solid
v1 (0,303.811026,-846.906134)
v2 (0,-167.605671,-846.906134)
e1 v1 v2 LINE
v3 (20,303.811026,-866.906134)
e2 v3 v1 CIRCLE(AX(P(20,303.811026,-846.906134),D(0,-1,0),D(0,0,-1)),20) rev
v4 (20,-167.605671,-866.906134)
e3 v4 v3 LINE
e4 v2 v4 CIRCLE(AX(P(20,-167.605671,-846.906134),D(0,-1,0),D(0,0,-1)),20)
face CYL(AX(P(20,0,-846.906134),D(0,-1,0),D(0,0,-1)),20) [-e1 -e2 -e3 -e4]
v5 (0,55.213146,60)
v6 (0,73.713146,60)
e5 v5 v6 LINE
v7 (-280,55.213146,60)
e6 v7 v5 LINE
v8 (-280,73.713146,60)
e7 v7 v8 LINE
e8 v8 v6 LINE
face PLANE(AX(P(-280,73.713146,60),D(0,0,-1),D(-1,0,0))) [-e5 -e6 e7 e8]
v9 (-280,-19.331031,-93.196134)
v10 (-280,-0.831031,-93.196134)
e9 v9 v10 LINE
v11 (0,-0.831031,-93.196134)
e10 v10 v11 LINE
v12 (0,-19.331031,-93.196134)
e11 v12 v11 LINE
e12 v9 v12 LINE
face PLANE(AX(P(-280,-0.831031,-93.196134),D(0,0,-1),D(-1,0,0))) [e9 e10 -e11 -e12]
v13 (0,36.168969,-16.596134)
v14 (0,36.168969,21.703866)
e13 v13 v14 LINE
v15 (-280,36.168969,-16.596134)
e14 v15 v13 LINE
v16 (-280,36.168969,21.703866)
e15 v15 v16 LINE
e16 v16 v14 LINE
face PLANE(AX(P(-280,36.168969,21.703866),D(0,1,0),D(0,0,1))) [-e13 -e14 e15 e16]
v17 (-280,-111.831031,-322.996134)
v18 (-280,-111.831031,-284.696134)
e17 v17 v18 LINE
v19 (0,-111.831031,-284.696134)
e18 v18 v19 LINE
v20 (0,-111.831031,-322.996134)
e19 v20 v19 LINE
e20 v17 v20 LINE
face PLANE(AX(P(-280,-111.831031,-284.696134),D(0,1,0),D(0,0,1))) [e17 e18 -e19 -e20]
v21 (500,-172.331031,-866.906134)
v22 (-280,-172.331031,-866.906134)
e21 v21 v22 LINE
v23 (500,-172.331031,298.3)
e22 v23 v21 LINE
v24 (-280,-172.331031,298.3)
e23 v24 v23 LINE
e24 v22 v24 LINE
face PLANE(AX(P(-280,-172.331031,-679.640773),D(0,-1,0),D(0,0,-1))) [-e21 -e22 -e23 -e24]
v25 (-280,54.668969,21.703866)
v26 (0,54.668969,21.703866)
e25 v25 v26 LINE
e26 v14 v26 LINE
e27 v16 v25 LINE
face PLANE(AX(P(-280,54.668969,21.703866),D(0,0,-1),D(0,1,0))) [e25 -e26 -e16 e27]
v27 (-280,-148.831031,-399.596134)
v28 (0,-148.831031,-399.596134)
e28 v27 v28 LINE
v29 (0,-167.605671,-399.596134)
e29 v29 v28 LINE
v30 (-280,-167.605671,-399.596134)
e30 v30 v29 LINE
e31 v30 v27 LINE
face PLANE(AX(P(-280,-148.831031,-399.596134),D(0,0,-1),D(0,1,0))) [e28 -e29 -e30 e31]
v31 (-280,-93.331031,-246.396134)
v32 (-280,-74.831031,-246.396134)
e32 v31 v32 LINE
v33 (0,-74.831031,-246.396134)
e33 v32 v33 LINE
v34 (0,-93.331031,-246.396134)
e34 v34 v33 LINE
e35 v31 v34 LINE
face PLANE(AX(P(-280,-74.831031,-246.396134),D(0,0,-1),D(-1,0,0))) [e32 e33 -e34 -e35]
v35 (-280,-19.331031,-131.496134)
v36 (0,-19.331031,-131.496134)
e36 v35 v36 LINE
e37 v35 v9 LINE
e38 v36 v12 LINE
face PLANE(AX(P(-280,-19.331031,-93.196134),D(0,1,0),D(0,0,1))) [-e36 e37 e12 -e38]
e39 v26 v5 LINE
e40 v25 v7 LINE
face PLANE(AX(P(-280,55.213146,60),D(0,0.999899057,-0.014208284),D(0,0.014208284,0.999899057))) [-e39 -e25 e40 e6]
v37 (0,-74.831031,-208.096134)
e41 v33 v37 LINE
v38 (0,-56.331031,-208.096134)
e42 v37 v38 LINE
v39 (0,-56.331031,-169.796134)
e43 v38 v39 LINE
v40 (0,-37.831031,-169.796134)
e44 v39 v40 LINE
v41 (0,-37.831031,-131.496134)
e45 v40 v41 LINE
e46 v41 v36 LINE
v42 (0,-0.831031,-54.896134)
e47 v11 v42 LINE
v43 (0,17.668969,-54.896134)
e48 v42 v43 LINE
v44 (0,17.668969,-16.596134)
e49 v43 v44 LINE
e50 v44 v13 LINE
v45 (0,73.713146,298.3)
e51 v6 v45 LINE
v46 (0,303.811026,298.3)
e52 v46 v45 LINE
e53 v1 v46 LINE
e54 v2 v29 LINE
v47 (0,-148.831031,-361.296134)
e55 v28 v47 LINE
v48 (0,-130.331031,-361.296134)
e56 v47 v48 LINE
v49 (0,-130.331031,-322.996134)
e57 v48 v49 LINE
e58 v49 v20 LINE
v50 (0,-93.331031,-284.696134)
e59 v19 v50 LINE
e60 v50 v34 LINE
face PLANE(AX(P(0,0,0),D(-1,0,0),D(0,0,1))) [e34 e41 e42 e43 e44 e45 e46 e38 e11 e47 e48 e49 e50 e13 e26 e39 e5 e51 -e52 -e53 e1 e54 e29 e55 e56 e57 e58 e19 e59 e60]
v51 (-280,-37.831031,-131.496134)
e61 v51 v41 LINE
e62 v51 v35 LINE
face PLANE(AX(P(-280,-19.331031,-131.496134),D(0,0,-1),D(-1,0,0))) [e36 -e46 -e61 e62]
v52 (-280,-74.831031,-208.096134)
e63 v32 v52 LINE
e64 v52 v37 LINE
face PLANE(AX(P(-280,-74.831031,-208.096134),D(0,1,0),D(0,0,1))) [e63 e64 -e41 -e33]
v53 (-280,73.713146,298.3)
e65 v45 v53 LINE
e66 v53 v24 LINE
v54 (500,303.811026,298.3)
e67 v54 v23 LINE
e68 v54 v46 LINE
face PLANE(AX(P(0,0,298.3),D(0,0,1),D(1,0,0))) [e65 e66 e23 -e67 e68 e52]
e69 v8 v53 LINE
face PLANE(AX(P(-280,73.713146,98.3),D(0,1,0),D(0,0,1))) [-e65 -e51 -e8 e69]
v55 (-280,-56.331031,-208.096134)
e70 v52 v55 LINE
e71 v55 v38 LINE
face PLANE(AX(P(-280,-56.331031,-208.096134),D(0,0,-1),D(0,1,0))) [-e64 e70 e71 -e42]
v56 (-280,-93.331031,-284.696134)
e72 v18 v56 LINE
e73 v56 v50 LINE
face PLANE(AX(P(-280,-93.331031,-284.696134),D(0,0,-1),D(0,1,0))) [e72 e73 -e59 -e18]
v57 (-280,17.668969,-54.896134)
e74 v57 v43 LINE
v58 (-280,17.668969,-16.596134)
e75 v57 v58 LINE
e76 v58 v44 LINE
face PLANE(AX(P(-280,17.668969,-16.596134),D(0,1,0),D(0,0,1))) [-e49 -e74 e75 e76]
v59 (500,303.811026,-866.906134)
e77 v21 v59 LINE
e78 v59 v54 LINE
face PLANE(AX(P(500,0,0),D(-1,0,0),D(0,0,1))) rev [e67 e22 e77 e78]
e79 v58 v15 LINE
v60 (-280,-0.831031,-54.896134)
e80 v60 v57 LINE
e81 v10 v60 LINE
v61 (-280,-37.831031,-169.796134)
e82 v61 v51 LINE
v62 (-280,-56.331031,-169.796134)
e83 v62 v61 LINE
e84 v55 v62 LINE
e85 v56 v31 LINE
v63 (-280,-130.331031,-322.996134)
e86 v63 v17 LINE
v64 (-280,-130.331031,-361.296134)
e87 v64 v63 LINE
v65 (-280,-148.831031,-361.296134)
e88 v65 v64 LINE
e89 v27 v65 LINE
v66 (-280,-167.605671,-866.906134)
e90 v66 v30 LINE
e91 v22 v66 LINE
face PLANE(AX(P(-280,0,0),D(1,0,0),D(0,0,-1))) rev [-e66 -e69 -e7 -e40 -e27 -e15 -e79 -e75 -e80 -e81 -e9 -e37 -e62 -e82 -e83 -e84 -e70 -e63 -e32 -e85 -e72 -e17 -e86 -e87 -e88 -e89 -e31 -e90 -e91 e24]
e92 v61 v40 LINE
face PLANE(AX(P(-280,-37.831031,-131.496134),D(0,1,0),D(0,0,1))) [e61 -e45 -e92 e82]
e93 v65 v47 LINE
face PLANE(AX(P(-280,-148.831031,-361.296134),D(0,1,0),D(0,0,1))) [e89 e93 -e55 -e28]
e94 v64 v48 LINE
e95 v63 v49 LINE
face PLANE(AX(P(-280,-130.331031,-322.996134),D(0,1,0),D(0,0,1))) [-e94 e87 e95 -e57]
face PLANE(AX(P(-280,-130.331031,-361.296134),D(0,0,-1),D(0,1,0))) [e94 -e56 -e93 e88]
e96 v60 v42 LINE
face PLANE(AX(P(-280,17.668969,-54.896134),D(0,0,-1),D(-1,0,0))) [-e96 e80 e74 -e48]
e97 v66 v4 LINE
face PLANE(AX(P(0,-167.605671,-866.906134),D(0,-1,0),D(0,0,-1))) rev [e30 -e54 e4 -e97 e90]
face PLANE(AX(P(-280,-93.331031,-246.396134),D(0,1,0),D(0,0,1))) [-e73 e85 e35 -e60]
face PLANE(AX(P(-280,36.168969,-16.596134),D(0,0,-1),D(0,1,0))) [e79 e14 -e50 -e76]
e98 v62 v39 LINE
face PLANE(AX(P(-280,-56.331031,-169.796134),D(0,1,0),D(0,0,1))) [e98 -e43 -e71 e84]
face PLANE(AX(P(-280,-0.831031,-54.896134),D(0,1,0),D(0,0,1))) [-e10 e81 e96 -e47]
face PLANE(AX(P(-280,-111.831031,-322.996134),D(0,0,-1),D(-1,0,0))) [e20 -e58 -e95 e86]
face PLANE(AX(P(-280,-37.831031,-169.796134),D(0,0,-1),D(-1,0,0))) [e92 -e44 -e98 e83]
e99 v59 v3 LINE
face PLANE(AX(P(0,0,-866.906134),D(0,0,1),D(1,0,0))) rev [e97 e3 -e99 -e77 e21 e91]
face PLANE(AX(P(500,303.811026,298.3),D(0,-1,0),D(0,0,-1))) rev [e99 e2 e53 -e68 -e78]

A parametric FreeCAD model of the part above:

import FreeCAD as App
import Part
import Sketcher

V = App.Vector
Q = App.Units.Quantity


def edges_at(feature, points):
    """Names of the edges that pass closest to the given points."""
    edges = feature.Shape.Edges
    near = lambda p: min(range(len(edges)), key=lambda i: edges[i].distToShape(Part.Vertex(*p))[0])
    return sorted({f"Edge{near(p) + 1}" for p in points})


def add_polygon(sketch, points):
    """Adds a closed chain of lines whose ends are joined by coincident constraints."""
    first, n = sketch.GeometryCount, len(points)
    for a, b in zip(points, points[1:] + points[:1]):
        sketch.addGeometry(Part.LineSegment(App.Vector(*a, 0), App.Vector(*b, 0)), False)
    for i in range(n):
        sketch.addConstraint(Sketcher.Constraint("Coincident", first + i, 2, first + (i + 1) % n, 1))

doc = App.newDocument("Part")
body = doc.addObject("PartDesign::Body", "Body")

# Sketch on YZ plane
sketch1 = doc.addObject("Sketcher::SketchObject", "Sketch")
body.addObject(sketch1)
sketch1.AttachmentSupport = (doc.YZ_Plane, [""])
sketch1.MapMode = "FlatFace"
add_polygon(sketch1, [(74, 60), (74, 98), (-167, 98), (-167, -400), (-149, -400), (-149, -361), (-130, -361), (-130, -323), (-112, -323), (-112, -285), (-93, -285), (-93, -246), (-75, -246), (-75, -208), (-56, -208), (-56, -170), (-38, -170), (-38, -131), (-19, -131), (-19, -93), (-1, -93), (-1, -55), (18, -55), (18, -17), (36, -17), (36, 22), (55, 22), (55, 60)])  # lines 0-27
sketch1.addConstraint([
    Sketcher.Constraint("Vertical", 0),
    Sketcher.Constraint("Horizontal", 1),
    Sketcher.Constraint("Vertical", 2),
    Sketcher.Constraint("Horizontal", 3),
    Sketcher.Constraint("Vertical", 4),
    Sketcher.Constraint("Horizontal", 5),
    Sketcher.Constraint("Vertical", 6),
    Sketcher.Constraint("Horizontal", 7),
    Sketcher.Constraint("Vertical", 8),
    Sketcher.Constraint("Horizontal", 9),
    Sketcher.Constraint("Vertical", 10),
    Sketcher.Constraint("Horizontal", 11),
    Sketcher.Constraint("Vertical", 12),
    Sketcher.Constraint("Horizontal", 13),
    Sketcher.Constraint("Vertical", 14),
    Sketcher.Constraint("Horizontal", 15),
    Sketcher.Constraint("Vertical", 16),
    Sketcher.Constraint("Horizontal", 17),
    Sketcher.Constraint("Vertical", 18),
    Sketcher.Constraint("Horizontal", 19),
    Sketcher.Constraint("Vertical", 20),
    Sketcher.Constraint("Horizontal", 21),
    Sketcher.Constraint("Vertical", 22),
    Sketcher.Constraint("Horizontal", 23),
    Sketcher.Constraint("Vertical", 24),
    Sketcher.Constraint("Horizontal", 25),
    Sketcher.Constraint("Horizontal", 27),
    Sketcher.Constraint("Equal", 3, 5),
    Sketcher.Constraint("Equal", 5, 7),
    Sketcher.Constraint("Equal", 7, 9),
    Sketcher.Constraint("Equal", 9, 11),
    Sketcher.Constraint("Equal", 11, 13),
    Sketcher.Constraint("Equal", 13, 15),
    Sketcher.Constraint("Equal", 15, 17),
    Sketcher.Constraint("Equal", 17, 19),
    Sketcher.Constraint("Equal", 19, 21),
    Sketcher.Constraint("Equal", 21, 23),
    Sketcher.Constraint("Equal", 23, 25),
    Sketcher.Constraint("Equal", 25, 27),
    Sketcher.Constraint("Equal", 0, 4),
    Sketcher.Constraint("Equal", 4, 6),
    Sketcher.Constraint("Equal", 6, 8),
    Sketcher.Constraint("Equal", 8, 10),
    Sketcher.Constraint("Equal", 10, 12),
    Sketcher.Constraint("Equal", 12, 14),
    Sketcher.Constraint("Equal", 14, 16),
    Sketcher.Constraint("Equal", 16, 18),
    Sketcher.Constraint("Equal", 18, 20),
    Sketcher.Constraint("Equal", 20, 22),
    Sketcher.Constraint("Equal", 22, 24),
    Sketcher.Constraint("DistanceX", 3, 1, 3, 2, Q("18.5 mm")),
    Sketcher.Constraint("DistanceY", 0, 1, 0, 2, Q("38.3 mm")),
    Sketcher.Constraint("DistanceY", -1, 1, 26, 2, Q("60 mm")),
    Sketcher.Constraint("Distance", 26, Q("38.3 mm")),
    Sketcher.Constraint("DistanceX", 1, 2, 1, 1, Q("241.044177 mm")),
    Sketcher.Constraint("DistanceX", 1, 2, -1, 1, Q("167.331031 mm")),
])
pad1 = doc.addObject("PartDesign::Pad", "Pad")
body.addObject(pad1)
pad1.Profile = sketch1
pad1.Length = 280
pad1.Reversed = True

# Sketch on XY plane
sketch2 = doc.addObject("Sketcher::SketchObject", "Sketch001")
body.addObject(sketch2)
sketch2.AttachmentSupport = (doc.XY_Plane, [""])
sketch2.MapMode = "FlatFace"
sketch2.AttachmentOffset = App.Placement(V(0, 0, 98.3), App.Rotation())
add_polygon(sketch2, [(-280, -167), (-280, -172), (0, -172), (0, -167)])  # lines 0-3
sketch2.addConstraint([
    Sketcher.Constraint("Vertical", 0),
    Sketcher.Constraint("Horizontal", 1),
    Sketcher.Constraint("Vertical", 2),
    Sketcher.Constraint("Horizontal", 3),
    Sketcher.Constraint("PointOnObject", 1, 2, -2),
    Sketcher.Constraint("DistanceX", 1, 1, 1, 2, Q("280 mm")),
    Sketcher.Constraint("DistanceY", 0, 2, 0, 1, Q("5 mm")),
    Sketcher.Constraint("DistanceY", 0, 2, -1, 1, Q("172.331031 mm")),
])
pad2 = doc.addObject("PartDesign::Pad", "Pad001")
body.addObject(pad2)
pad2.Profile = sketch2
pad2.Length = 497.896134
pad2.Reversed = True

# Sketch on XY plane
sketch3 = doc.addObject("Sketcher::SketchObject", "Sketch002")
body.addObject(sketch3)
sketch3.AttachmentSupport = (doc.XY_Plane, [""])
sketch3.MapMode = "FlatFace"
sketch3.AttachmentOffset = App.Placement(V(0, 0, 98.3), App.Rotation())
add_polygon(sketch3, [(-280, 74), (-280, -172), (0, -172), (0, 74)])  # lines 0-3
sketch3.addConstraint([
    Sketcher.Constraint("Vertical", 0),
    Sketcher.Constraint("Horizontal", 1),
    Sketcher.Constraint("Vertical", 2),
    Sketcher.Constraint("Horizontal", 3),
    Sketcher.Constraint("PointOnObject", 1, 2, -2),
    Sketcher.Constraint("DistanceX", 1, 1, 1, 2, Q("280 mm")),
    Sketcher.Constraint("DistanceY", 0, 2, 0, 1, Q("246.044177 mm")),
    Sketcher.Constraint("DistanceY", 0, 2, -1, 1, Q("172.331031 mm")),
])
pad3 = doc.addObject("PartDesign::Pad", "Pad002")
body.addObject(pad3)
pad3.Profile = sketch3
pad3.Length = 200

# Sketch on XY plane
sketch4 = doc.addObject("Sketcher::SketchObject", "Sketch003")
body.addObject(sketch4)
sketch4.AttachmentSupport = (doc.XY_Plane, [""])
sketch4.MapMode = "FlatFace"
sketch4.AttachmentOffset = App.Placement(V(0, 0, -399.596134), App.Rotation())
add_polygon(sketch4, [(0, -167.6), (0, -172.3), (-280, -172.3), (-280, -167.6)])  # lines 0-3
sketch4.addConstraint([
    Sketcher.Constraint("Vertical", 0),
    Sketcher.Constraint("Horizontal", 1),
    Sketcher.Constraint("Vertical", 2),
    Sketcher.Constraint("Horizontal", 3),
    Sketcher.Constraint("PointOnObject", 0, 2, -2),
    Sketcher.Constraint("DistanceX", 1, 2, 1, 1, Q("280 mm")),
    Sketcher.Constraint("DistanceY", 0, 2, 0, 1, Q("4.72536 mm")),
    Sketcher.Constraint("DistanceY", 0, 2, -1, 1, Q("172.331031 mm")),
])
pad4 = doc.addObject("PartDesign::Pad", "Pad003")
body.addObject(pad4)
pad4.Profile = sketch4
pad4.Length = 467.31
pad4.Reversed = True

# Sketch on YZ plane
sketch5 = doc.addObject("Sketcher::SketchObject", "Sketch004")
body.addObject(sketch5)
sketch5.AttachmentSupport = (doc.YZ_Plane, [""])
sketch5.MapMode = "FlatFace"
add_polygon(sketch5, [(304, 298), (-172, 298), (-172, -867), (304, -867)])  # lines 0-3
sketch5.addConstraint([
    Sketcher.Constraint("Horizontal", 0),
    Sketcher.Constraint("Vertical", 1),
    Sketcher.Constraint("Horizontal", 2),
    Sketcher.Constraint("Vertical", 3),
    Sketcher.Constraint("DistanceY", -1, 1, 0, 2, Q("298.3 mm")),
    Sketcher.Constraint("DistanceX", 0, 2, 0, 1, Q("476.142057 mm")),
    Sketcher.Constraint("DistanceY", 1, 2, 1, 1, Q("1165.206134 mm")),
    Sketcher.Constraint("DistanceX", 0, 2, -1, 1, Q("172.331031 mm")),
])
pad5 = doc.addObject("PartDesign::Pad", "Pad004")
body.addObject(pad5)
pad5.Profile = sketch5
pad5.Length = 500
doc.recompute()

fillet = doc.addObject("PartDesign::Fillet", "Fillet")
body.addObject(fillet)
fillet.Base = (pad5, edges_at(pad5, [(0, 68.103, -866.906)]))
fillet.Radius = 20

doc.recompute()
